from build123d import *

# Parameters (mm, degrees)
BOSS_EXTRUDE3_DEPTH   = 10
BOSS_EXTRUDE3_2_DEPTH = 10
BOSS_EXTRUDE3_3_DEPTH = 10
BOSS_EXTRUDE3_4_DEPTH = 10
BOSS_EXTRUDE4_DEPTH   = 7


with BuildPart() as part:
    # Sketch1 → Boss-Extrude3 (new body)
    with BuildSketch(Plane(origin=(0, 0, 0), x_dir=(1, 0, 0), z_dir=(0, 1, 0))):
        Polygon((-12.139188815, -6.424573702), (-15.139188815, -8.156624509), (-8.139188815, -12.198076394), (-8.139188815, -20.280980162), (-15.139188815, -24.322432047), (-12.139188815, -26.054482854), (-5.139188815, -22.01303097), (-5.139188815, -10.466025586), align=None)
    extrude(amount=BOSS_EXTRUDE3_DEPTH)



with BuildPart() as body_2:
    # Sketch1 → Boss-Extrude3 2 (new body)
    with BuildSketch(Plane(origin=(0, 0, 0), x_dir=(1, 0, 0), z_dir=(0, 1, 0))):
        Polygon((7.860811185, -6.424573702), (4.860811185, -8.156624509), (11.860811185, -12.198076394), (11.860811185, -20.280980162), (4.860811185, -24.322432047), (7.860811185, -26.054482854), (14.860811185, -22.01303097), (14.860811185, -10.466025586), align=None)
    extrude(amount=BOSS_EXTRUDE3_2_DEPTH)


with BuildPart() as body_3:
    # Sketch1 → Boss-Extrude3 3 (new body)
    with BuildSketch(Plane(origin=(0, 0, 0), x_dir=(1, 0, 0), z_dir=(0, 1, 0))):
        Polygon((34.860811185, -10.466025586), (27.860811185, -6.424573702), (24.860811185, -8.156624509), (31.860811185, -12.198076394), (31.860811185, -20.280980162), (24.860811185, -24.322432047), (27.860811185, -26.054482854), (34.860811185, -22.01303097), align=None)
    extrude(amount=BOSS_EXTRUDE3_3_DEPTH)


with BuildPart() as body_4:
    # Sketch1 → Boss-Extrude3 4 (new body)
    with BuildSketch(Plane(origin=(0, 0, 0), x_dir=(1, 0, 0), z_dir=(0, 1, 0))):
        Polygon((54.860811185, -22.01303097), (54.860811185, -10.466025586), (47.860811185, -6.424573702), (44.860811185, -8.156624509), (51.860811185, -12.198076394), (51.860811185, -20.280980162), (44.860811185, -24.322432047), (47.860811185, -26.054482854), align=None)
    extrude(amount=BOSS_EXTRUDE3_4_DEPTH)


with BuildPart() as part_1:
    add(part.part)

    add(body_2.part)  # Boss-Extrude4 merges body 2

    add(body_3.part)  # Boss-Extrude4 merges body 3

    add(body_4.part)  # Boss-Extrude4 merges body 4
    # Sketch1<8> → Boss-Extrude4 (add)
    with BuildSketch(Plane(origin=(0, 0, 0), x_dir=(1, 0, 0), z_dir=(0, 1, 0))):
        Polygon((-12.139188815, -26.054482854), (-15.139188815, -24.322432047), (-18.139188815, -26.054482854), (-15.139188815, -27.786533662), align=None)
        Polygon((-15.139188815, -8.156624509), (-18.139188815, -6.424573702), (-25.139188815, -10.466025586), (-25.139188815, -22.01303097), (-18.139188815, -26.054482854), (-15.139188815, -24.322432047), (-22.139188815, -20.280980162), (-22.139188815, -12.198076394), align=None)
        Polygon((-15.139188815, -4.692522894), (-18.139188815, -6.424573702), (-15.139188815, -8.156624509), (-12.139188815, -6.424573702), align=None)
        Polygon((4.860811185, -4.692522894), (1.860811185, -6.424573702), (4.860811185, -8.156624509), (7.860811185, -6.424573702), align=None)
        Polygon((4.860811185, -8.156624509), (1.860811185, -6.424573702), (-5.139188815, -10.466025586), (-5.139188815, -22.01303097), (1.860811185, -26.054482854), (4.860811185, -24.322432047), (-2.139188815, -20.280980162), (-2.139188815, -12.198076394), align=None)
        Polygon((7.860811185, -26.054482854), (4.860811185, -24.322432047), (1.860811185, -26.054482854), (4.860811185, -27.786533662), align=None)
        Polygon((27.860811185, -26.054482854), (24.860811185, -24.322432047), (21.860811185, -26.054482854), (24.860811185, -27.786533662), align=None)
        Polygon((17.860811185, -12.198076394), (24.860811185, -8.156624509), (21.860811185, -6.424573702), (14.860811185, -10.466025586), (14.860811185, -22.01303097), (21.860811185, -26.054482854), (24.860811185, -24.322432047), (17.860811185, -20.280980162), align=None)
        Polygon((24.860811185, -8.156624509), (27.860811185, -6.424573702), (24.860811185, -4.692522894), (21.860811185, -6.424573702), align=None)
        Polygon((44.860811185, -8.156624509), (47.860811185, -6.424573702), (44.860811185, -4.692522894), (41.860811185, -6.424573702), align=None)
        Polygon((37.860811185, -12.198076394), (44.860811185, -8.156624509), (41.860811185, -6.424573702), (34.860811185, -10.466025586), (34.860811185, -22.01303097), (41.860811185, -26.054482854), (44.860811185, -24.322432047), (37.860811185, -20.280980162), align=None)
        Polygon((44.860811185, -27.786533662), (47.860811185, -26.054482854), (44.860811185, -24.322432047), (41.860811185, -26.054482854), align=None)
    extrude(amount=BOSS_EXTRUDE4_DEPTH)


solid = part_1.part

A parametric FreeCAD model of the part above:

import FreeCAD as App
import Part
import Sketcher
from FreeCAD import Vector
Q = App.Units.Quantity

doc = App.newDocument("Part")
params = doc.addObject("Spreadsheet::Sheet", "Params")
for row, (alias, value) in enumerate([
    ("pad1_length", "10 mm"),
    ("pad2_length", "10 mm"),
    ("pad3_length", "10 mm"),
    ("pad4_length", "10 mm"),
    ("pad5_length", "7 mm"),
], start=1):
    params.set(f"A{row}", alias)
    params.set(f"B{row}", "=" + value)
    params.setAlias(f"B{row}", alias)

body = doc.addObject("PartDesign::Body", "Body")

sketch1 = doc.addObject("Sketcher::SketchObject", "Sketch")
body.addObject(sketch1)
sketch1.AttachmentSupport = (doc.XZ_Plane, [""])
sketch1.MapMode = "FlatFace"
sketch1.addGeometry([
    Part.LineSegment(Vector(-12.1, 6.4, 0), Vector(-15.1, 8.2, 0)),
    Part.LineSegment(Vector(-15.1, 8.2, 0), Vector(-8.1, 12.2, 0)),
    Part.LineSegment(Vector(-8.1, 12.2, 0), Vector(-8.1, 20.3, 0)),
    Part.LineSegment(Vector(-8.1, 20.3, 0), Vector(-15.1, 24.3, 0)),
    Part.LineSegment(Vector(-15.1, 24.3, 0), Vector(-12.1, 26.1, 0)),
    Part.LineSegment(Vector(-12.1, 26.1, 0), Vector(-5.1, 22, 0)),
    Part.LineSegment(Vector(-5.1, 22, 0), Vector(-5.1, 10.5, 0)),
    Part.LineSegment(Vector(-5.1, 10.5, 0), Vector(-12.1, 6.4, 0)),
], False)
sketch1.addConstraint([
    Sketcher.Constraint("Coincident", 0, 2, 1, 1),
    Sketcher.Constraint("Coincident", 1, 2, 2, 1),
    Sketcher.Constraint("Coincident", 2, 2, 3, 1),
    Sketcher.Constraint("Coincident", 3, 2, 4, 1),
    Sketcher.Constraint("Coincident", 4, 2, 5, 1),
    Sketcher.Constraint("Coincident", 5, 2, 6, 1),
    Sketcher.Constraint("Coincident", 6, 2, 7, 1),
    Sketcher.Constraint("Coincident", 7, 2, 0, 1),
    Sketcher.Constraint("Vertical", 2),
    Sketcher.Constraint("Vertical", 6),
    Sketcher.Constraint("Parallel", 0, 3),
    Sketcher.Constraint("Parallel", 1, 4),
    Sketcher.Constraint("Parallel", 3, 5),
    Sketcher.Constraint("Parallel", 4, 7),
    Sketcher.Constraint("Vertical", 0, 2, 3, 2),
    Sketcher.Constraint("Vertical", 4, 2, 7, 2),
    Sketcher.Constraint("Equal", 1, 3),
    Sketcher.Constraint("Equal", 3, 5),
    Sketcher.Constraint("Angle", 0, Q("150 deg")),
    Sketcher.Constraint("DistanceX", 0, 2, 1, 2, 7.0),
    Sketcher.Constraint("DistanceX", 3, 2, 4, 2, 3.0),
    Sketcher.Constraint("DistanceY", 2, 1, 2, 2, 8.082904),
    Sketcher.Constraint("DistanceX", 0, 2, -1, 1, 15.139189),
    Sketcher.Constraint("DistanceY", -1, 1, 2, 2, 20.28098),
])
pad1 = doc.addObject("PartDesign::Pad", "Pad")
body.addObject(pad1)
pad1.Profile = sketch1
pad1.setExpression("Length", "Params.pad1_length")
pad1.Reversed = True
body2 = doc.addObject("PartDesign::Body", "Body001")

sketch2 = doc.addObject("Sketcher::SketchObject", "Sketch001")
body2.addObject(sketch2)
sketch2.AttachmentSupport = (doc.getObject("XZ_Plane001"), [""])
sketch2.MapMode = "FlatFace"
sketch2.addGeometry([
    Part.LineSegment(Vector(7.9, 6.4, 0), Vector(4.9, 8.2, 0)),
    Part.LineSegment(Vector(4.9, 8.2, 0), Vector(11.9, 12.2, 0)),
    Part.LineSegment(Vector(11.9, 12.2, 0), Vector(11.9, 20.3, 0)),
    Part.LineSegment(Vector(11.9, 20.3, 0), Vector(4.9, 24.3, 0)),
    Part.LineSegment(Vector(4.9, 24.3, 0), Vector(7.9, 26.1, 0)),
    Part.LineSegment(Vector(7.9, 26.1, 0), Vector(14.9, 22, 0)),
    Part.LineSegment(Vector(14.9, 22, 0), Vector(14.9, 10.5, 0)),
    Part.LineSegment(Vector(14.9, 10.5, 0), Vector(7.9, 6.4, 0)),
], False)
sketch2.addConstraint([
    Sketcher.Constraint("Coincident", 0, 2, 1, 1),
    Sketcher.Constraint("Coincident", 1, 2, 2, 1),
    Sketcher.Constraint("Coincident", 2, 2, 3, 1),
    Sketcher.Constraint("Coincident", 3, 2, 4, 1),
    Sketcher.Constraint("Coincident", 4, 2, 5, 1),
    Sketcher.Constraint("Coincident", 5, 2, 6, 1),
    Sketcher.Constraint("Coincident", 6, 2, 7, 1),
    Sketcher.Constraint("Coincident", 7, 2, 0, 1),
    Sketcher.Constraint("Vertical", 2),
    Sketcher.Constraint("Vertical", 6),
    Sketcher.Constraint("Parallel", 0, 3),
    Sketcher.Constraint("Parallel", 1, 4),
    Sketcher.Constraint("Parallel", 3, 5),
    Sketcher.Constraint("Parallel", 4, 7),
    Sketcher.Constraint("Vertical", 0, 2, 3, 2),
    Sketcher.Constraint("Vertical", 4, 2, 7, 2),
    Sketcher.Constraint("Equal", 1, 3),
    Sketcher.Constraint("Equal", 3, 5),
    Sketcher.Constraint("Angle", 0, Q("150 deg")),
    Sketcher.Constraint("DistanceX", 0, 2, 1, 2, 7.0),
    Sketcher.Constraint("DistanceX", 3, 2, 4, 2, 3.0),
    Sketcher.Constraint("DistanceY", 2, 1, 2, 2, 8.082904),
    Sketcher.Constraint("DistanceX", -1, 1, 0, 2, 4.860811),
    Sketcher.Constraint("DistanceY", -1, 1, 2, 2, 20.28098),
])
pad2 = doc.addObject("PartDesign::Pad", "Pad001")
body2.addObject(pad2)
pad2.Profile = sketch2
pad2.setExpression("Length", "Params.pad2_length")
pad2.Reversed = True
body3 = doc.addObject("PartDesign::Body", "Body002")

sketch3 = doc.addObject("Sketcher::SketchObject", "Sketch002")
body3.addObject(sketch3)
sketch3.AttachmentSupport = (doc.getObject("XZ_Plane002"), [""])
sketch3.MapMode = "FlatFace"
sketch3.addGeometry([
    Part.LineSegment(Vector(34.9, 10.5, 0), Vector(27.9, 6.4, 0)),
    Part.LineSegment(Vector(27.9, 6.4, 0), Vector(24.9, 8.2, 0)),
    Part.LineSegment(Vector(24.9, 8.2, 0), Vector(31.9, 12.2, 0)),
    Part.LineSegment(Vector(31.9, 12.2, 0), Vector(31.9, 20.3, 0)),
    Part.LineSegment(Vector(31.9, 20.3, 0), Vector(24.9, 24.3, 0)),
    Part.LineSegment(Vector(24.9, 24.3, 0), Vector(27.9, 26.1, 0)),
    Part.LineSegment(Vector(27.9, 26.1, 0), Vector(34.9, 22, 0)),
    Part.LineSegment(Vector(34.9, 22, 0), Vector(34.9, 10.5, 0)),
], False)
sketch3.addConstraint([
    Sketcher.Constraint("Coincident", 0, 2, 1, 1),
    Sketcher.Constraint("Coincident", 1, 2, 2, 1),
    Sketcher.Constraint("Coincident", 2, 2, 3, 1),
    Sketcher.Constraint("Coincident", 3, 2, 4, 1),
    Sketcher.Constraint("Coincident", 4, 2, 5, 1),
    Sketcher.Constraint("Coincident", 5, 2, 6, 1),
    Sketcher.Constraint("Coincident", 6, 2, 7, 1),
    Sketcher.Constraint("Coincident", 7, 2, 0, 1),
    Sketcher.Constraint("Vertical", 3),
    Sketcher.Constraint("Vertical", 7),
    Sketcher.Constraint("Parallel", 0, 2),
    Sketcher.Constraint("Parallel", 1, 4),
    Sketcher.Constraint("Parallel", 2, 5),
    Sketcher.Constraint("Parallel", 4, 6),
    Sketcher.Constraint("Vertical", 1, 2, 4, 2),
    Sketcher.Constraint("Vertical", 0, 2, 5, 2),
    Sketcher.Constraint("Equal", 0, 2),
    Sketcher.Constraint("Equal", 2, 4),
    Sketcher.Constraint("Angle", 0, Q("-150 deg")),
    Sketcher.Constraint("DistanceX", 1, 2, 0, 2, 3.0),
    Sketcher.Constraint("DistanceX", 0, 2, 2, 2, 4.0),
    Sketcher.Constraint("DistanceY", 3, 1, 3, 2, 8.082904),
    Sketcher.Constraint("DistanceX", -1, 1, 0, 2, 27.860811),
    Sketcher.Constraint("DistanceY", -1, 1, 3, 2, 20.28098),
])
pad3 = doc.addObject("PartDesign::Pad", "Pad002")
body3.addObject(pad3)
pad3.Profile = sketch3
pad3.setExpression("Length", "Params.pad3_length")
pad3.Reversed = True
body4 = doc.addObject("PartDesign::Body", "Body003")

sketch4 = doc.addObject("Sketcher::SketchObject", "Sketch003")
body4.addObject(sketch4)
sketch4.AttachmentSupport = (doc.getObject("XZ_Plane003"), [""])
sketch4.MapMode = "FlatFace"
sketch4.addGeometry([
    Part.LineSegment(Vector(54.9, 22, 0), Vector(54.9, 10.5, 0)),
    Part.LineSegment(Vector(54.9, 10.5, 0), Vector(47.9, 6.4, 0)),
    Part.LineSegment(Vector(47.9, 6.4, 0), Vector(44.9, 8.2, 0)),
    Part.LineSegment(Vector(44.9, 8.2, 0), Vector(51.9, 12.2, 0)),
    Part.LineSegment(Vector(51.9, 12.2, 0), Vector(51.9, 20.3, 0)),
    Part.LineSegment(Vector(51.9, 20.3, 0), Vector(44.9, 24.3, 0)),
    Part.LineSegment(Vector(44.9, 24.3, 0), Vector(47.9, 26.1, 0)),
    Part.LineSegment(Vector(47.9, 26.1, 0), Vector(54.9, 22, 0)),
], False)
sketch4.addConstraint([
    Sketcher.Constraint("Coincident", 0, 2, 1, 1),
    Sketcher.Constraint("Coincident", 1, 2, 2, 1),
    Sketcher.Constraint("Coincident", 2, 2, 3, 1),
    Sketcher.Constraint("Coincident", 3, 2, 4, 1),
    Sketcher.Constraint("Coincident", 4, 2, 5, 1),
    Sketcher.Constraint("Coincident", 5, 2, 6, 1),
    Sketcher.Constraint("Coincident", 6, 2, 7, 1),
    Sketcher.Constraint("Coincident", 7, 2, 0, 1),
    Sketcher.Constraint("Vertical", 0),
    Sketcher.Constraint("Vertical", 4),
    Sketcher.Constraint("Parallel", 1, 3),
    Sketcher.Constraint("Parallel", 2, 5),
    Sketcher.Constraint("Parallel", 3, 6),
    Sketcher.Constraint("Parallel", 5, 7),
    Sketcher.Constraint("Vertical", 2, 2, 5, 2),
    Sketcher.Constraint("Vertical", 1, 2, 6, 2),
    Sketcher.Constraint("Equal", 1, 3),
    Sketcher.Constraint("Equal", 3, 5),
    Sketcher.Constraint("Angle", 1, Q("-150 deg")),
    Sketcher.Constraint("DistanceX", 1, 2, 0, 2, 7.0),
    Sketcher.Constraint("DistanceX", 2, 2, 1, 2, 3.0),
    Sketcher.Constraint("DistanceY", 0, 2, 0, 1, 11.547005),
    Sketcher.Constraint("DistanceX", -1, 1, 0, 2, 54.860811),
    Sketcher.Constraint("DistanceY", -1, 1, 4, 2, 20.28098),
])
pad4 = doc.addObject("PartDesign::Pad", "Pad003")
body4.addObject(pad4)
pad4.Profile = sketch4
pad4.setExpression("Length", "Params.pad4_length")
pad4.Reversed = True
body.AllowCompound = True
doc.recompute()

boolean = doc.addObject("PartDesign::Boolean", "Boolean")
body.addObject(boolean)
boolean.Type = "Fuse"
boolean.addObjects([body2])
doc.recompute()

boolean2 = doc.addObject("PartDesign::Boolean", "Boolean001")
body.addObject(boolean2)
boolean2.Type = "Fuse"
boolean2.addObjects([body3])
doc.recompute()

boolean3 = doc.addObject("PartDesign::Boolean", "Boolean002")
body.addObject(boolean3)
boolean3.Type = "Fuse"
boolean3.addObjects([body4])

sketch5 = doc.addObject("Sketcher::SketchObject", "Sketch004")
body.addObject(sketch5)
sketch5.AttachmentSupport = (doc.XZ_Plane, [""])
sketch5.MapMode = "FlatFace"
sketch5.addGeometry([
    Part.LineSegment(Vector(-12.1, 26.1, 0), Vector(-15.1, 24.3, 0)),
    Part.LineSegment(Vector(-15.1, 24.3, 0), Vector(-22.1, 20.3, 0)),
    Part.LineSegment(Vector(-22.1, 20.3, 0), Vector(-22.1, 12.2, 0)),
    Part.LineSegment(Vector(-22.1, 12.2, 0), Vector(-15.1, 8.2, 0)),
    Part.LineSegment(Vector(-15.1, 8.2, 0), Vector(-12.1, 6.4, 0)),
    Part.LineSegment(Vector(-12.1, 6.4, 0), Vector(-15.1, 4.7, 0)),
    Part.LineSegment(Vector(-15.1, 4.7, 0), Vector(-18.1, 6.4, 0)),
    Part.LineSegment(Vector(-18.1, 6.4, 0), Vector(-25.1, 10.5, 0)),
    Part.LineSegment(Vector(-25.1, 10.5, 0), Vector(-25.1, 22, 0)),
    Part.LineSegment(Vector(-25.1, 22, 0), Vector(-18.1, 26.1, 0)),
    Part.LineSegment(Vector(-18.1, 26.1, 0), Vector(-15.1, 27.8, 0)),
    Part.LineSegment(Vector(-15.1, 27.8, 0), Vector(-12.1, 26.1, 0)),
    Part.LineSegment(Vector(4.9, 4.7, 0), Vector(1.9, 6.4, 0)),
    Part.LineSegment(Vector(1.9, 6.4, 0), Vector(-5.1, 10.5, 0)),
    Part.LineSegment(Vector(-5.1, 10.5, 0), Vector(-5.1, 22, 0)),
    Part.LineSegment(Vector(-5.1, 22, 0), Vector(1.9, 26.1, 0)),
    Part.LineSegment(Vector(1.9, 26.1, 0), Vector(4.9, 27.8, 0)),
    Part.LineSegment(Vector(4.9, 27.8, 0), Vector(7.9, 26.1, 0)),
    Part.LineSegment(Vector(7.9, 26.1, 0), Vector(4.9, 24.3, 0)),
    Part.LineSegment(Vector(4.9, 24.3, 0), Vector(-2.1, 20.3, 0)),
    Part.LineSegment(Vector(-2.1, 20.3, 0), Vector(-2.1, 12.2, 0)),
    Part.LineSegment(Vector(-2.1, 12.2, 0), Vector(4.9, 8.2, 0)),
    Part.LineSegment(Vector(4.9, 8.2, 0), Vector(7.9, 6.4, 0)),
    Part.LineSegment(Vector(7.9, 6.4, 0), Vector(4.9, 4.7, 0)),
    Part.LineSegment(Vector(27.9, 26.1, 0), Vector(24.9, 24.3, 0)),
    Part.LineSegment(Vector(24.9, 24.3, 0), Vector(17.9, 20.3, 0)),
    Part.LineSegment(Vector(17.9, 20.3, 0), Vector(17.9, 12.2, 0)),
    Part.LineSegment(Vector(17.9, 12.2, 0), Vector(24.9, 8.2, 0)),
    Part.LineSegment(Vector(24.9, 8.2, 0), Vector(27.9, 6.4, 0)),
    Part.LineSegment(Vector(27.9, 6.4, 0), Vector(24.9, 4.7, 0)),
    Part.LineSegment(Vector(24.9, 4.7, 0), Vector(21.9, 6.4, 0)),
    Part.LineSegment(Vector(21.9, 6.4, 0), Vector(14.9, 10.5, 0)),
    Part.LineSegment(Vector(14.9, 10.5, 0), Vector(14.9, 22, 0)),
    Part.LineSegment(Vector(14.9, 22, 0), Vector(21.9, 26.1, 0)),
    Part.LineSegment(Vector(21.9, 26.1, 0), Vector(24.9, 27.8, 0)),
    Part.LineSegment(Vector(24.9, 27.8, 0), Vector(27.9, 26.1, 0)),
    Part.LineSegment(Vector(44.9, 8.2, 0), Vector(47.9, 6.4, 0)),
    Part.LineSegment(Vector(47.9, 6.4, 0), Vector(44.9, 4.7, 0)),
    Part.LineSegment(Vector(44.9, 4.7, 0), Vector(41.9, 6.4, 0)),
    Part.LineSegment(Vector(41.9, 6.4, 0), Vector(34.9, 10.5, 0)),
    Part.LineSegment(Vector(34.9, 10.5, 0), Vector(34.9, 22, 0)),
    Part.LineSegment(Vector(34.9, 22, 0), Vector(41.9, 26.1, 0)),
    Part.LineSegment(Vector(41.9, 26.1, 0), Vector(44.9, 27.8, 0)),
    Part.LineSegment(Vector(44.9, 27.8, 0), Vector(47.9, 26.1, 0)),
    Part.LineSegment(Vector(47.9, 26.1, 0), Vector(44.9, 24.3, 0)),
    Part.LineSegment(Vector(44.9, 24.3, 0), Vector(37.9, 20.3, 0)),
    Part.LineSegment(Vector(37.9, 20.3, 0), Vector(37.9, 12.2, 0)),
    Part.LineSegment(Vector(37.9, 12.2, 0), Vector(44.9, 8.2, 0)),
], False)
sketch5.addConstraint([
    Sketcher.Constraint("Coincident", 0, 2, 1, 1),
    Sketcher.Constraint("Coincident", 1, 2, 2, 1),
    Sketcher.Constraint("Coincident", 2, 2, 3, 1),
    Sketcher.Constraint("Coincident", 3, 2, 4, 1),
    Sketcher.Constraint("Coincident", 4, 2, 5, 1),
    Sketcher.Constraint("Coincident", 5, 2, 6, 1),
    Sketcher.Constraint("Coincident", 6, 2, 7, 1),
    Sketcher.Constraint("Coincident", 7, 2, 8, 1),
    Sketcher.Constraint("Coincident", 8, 2, 9, 1),
    Sketcher.Constraint("Coincident", 9, 2, 10, 1),
    Sketcher.Constraint("Coincident", 10, 2, 11, 1),
    Sketcher.Constraint("Coincident", 11, 2, 0, 1),
    Sketcher.Constraint("Coincident", 12, 2, 13, 1),
    Sketcher.Constraint("Coincident", 13, 2, 14, 1),
    Sketcher.Constraint("Coincident", 14, 2, 15, 1),
    Sketcher.Constraint("Coincident", 15, 2, 16, 1),
    Sketcher.Constraint("Coincident", 16, 2, 17, 1),
    Sketcher.Constraint("Coincident", 17, 2, 18, 1),
    Sketcher.Constraint("Coincident", 18, 2, 19, 1),
    Sketcher.Constraint("Coincident", 19, 2, 20, 1),
    Sketcher.Constraint("Coincident", 20, 2, 21, 1),
    Sketcher.Constraint("Coincident", 21, 2, 22, 1),
    Sketcher.Constraint("Coincident", 22, 2, 23, 1),
    Sketcher.Constraint("Coincident", 23, 2, 12, 1),
    Sketcher.Constraint("Coincident", 24, 2, 25, 1),
    Sketcher.Constraint("Coincident", 25, 2, 26, 1),
    Sketcher.Constraint("Coincident", 26, 2, 27, 1),
    Sketcher.Constraint("Coincident", 27, 2, 28, 1),
    Sketcher.Constraint("Coincident", 28, 2, 29, 1),
    Sketcher.Constraint("Coincident", 29, 2, 30, 1),
    Sketcher.Constraint("Coincident", 30, 2, 31, 1),
    Sketcher.Constraint("Coincident", 31, 2, 32, 1),
    Sketcher.Constraint("Coincident", 32, 2, 33, 1),
    Sketcher.Constraint("Coincident", 33, 2, 34, 1),
    Sketcher.Constraint("Coincident", 34, 2, 35, 1),
    Sketcher.Constraint("Coincident", 35, 2, 24, 1),
    Sketcher.Constraint("Coincident", 36, 2, 37, 1),
    Sketcher.Constraint("Coincident", 37, 2, 38, 1),
    Sketcher.Constraint("Coincident", 38, 2, 39, 1),
    Sketcher.Constraint("Coincident", 39, 2, 40, 1),
    Sketcher.Constraint("Coincident", 40, 2, 41, 1),
    Sketcher.Constraint("Coincident", 41, 2, 42, 1),
    Sketcher.Constraint("Coincident", 42, 2, 43, 1),
    Sketcher.Constraint("Coincident", 43, 2, 44, 1),
    Sketcher.Constraint("Coincident", 44, 2, 45, 1),
    Sketcher.Constraint("Coincident", 45, 2, 46, 1),
    Sketcher.Constraint("Coincident", 46, 2, 47, 1),
    Sketcher.Constraint("Coincident", 47, 2, 36, 1),
    Sketcher.Constraint("Vertical", 2),
    Sketcher.Constraint("Vertical", 8),
    Sketcher.Constraint("Vertical", 14),
    Sketcher.Constraint("Vertical", 20),
    Sketcher.Constraint("Vertical", 26),
    Sketcher.Constraint("Vertical", 32),
    Sketcher.Constraint("Vertical", 40),
    Sketcher.Constraint("Vertical", 46),
    Sketcher.Constraint("Parallel", 0, 1),
    Sketcher.Constraint("Parallel", 3, 4),
    Sketcher.Constraint("Parallel", 1, 5),
    Sketcher.Constraint("Parallel", 4, 6),
    Sketcher.Constraint("Parallel", 6, 7),
    Sketcher.Constraint("Parallel", 5, 9),
    Sketcher.Constraint("Parallel", 9, 10),
    Sketcher.Constraint("Parallel", 7, 11),
    Sketcher.Constraint("Parallel", 11, 12),
    Sketcher.Constraint("Parallel", 12, 13),
    Sketcher.Constraint("Parallel", 10, 15),
    Sketcher.Constraint("Parallel", 15, 16),
    Sketcher.Constraint("Parallel", 13, 17),
    Sketcher.Constraint("Parallel", 16, 18),
    Sketcher.Constraint("Parallel", 18, 19),
    Sketcher.Constraint("Parallel", 17, 21),
    Sketcher.Constraint("Parallel", 21, 22),
    Sketcher.Constraint("Parallel", 19, 23),
    Sketcher.Constraint("Parallel", 23, 24),
    Sketcher.Constraint("Parallel", 24, 25),
    Sketcher.Constraint("Parallel", 22, 27),
    Sketcher.Constraint("Parallel", 27, 28),
    Sketcher.Constraint("Parallel", 25, 29),
    Sketcher.Constraint("Parallel", 28, 30),
    Sketcher.Constraint("Parallel", 30, 31),
    Sketcher.Constraint("Parallel", 29, 33),
    Sketcher.Constraint("Parallel", 33, 34),
    Sketcher.Constraint("Parallel", 31, 35),
    Sketcher.Constraint("Parallel", 35, 36),
    Sketcher.Constraint("Parallel", 34, 37),
    Sketcher.Constraint("Parallel", 36, 38),
    Sketcher.Constraint("Parallel", 38, 39),
    Sketcher.Constraint("Parallel", 37, 41),
    Sketcher.Constraint("Parallel", 41, 42),
    Sketcher.Constraint("Parallel", 39, 43),
    Sketcher.Constraint("Parallel", 42, 44),
    Sketcher.Constraint("Parallel", 44, 45),
    Sketcher.Constraint("Parallel", 43, 47),
    Sketcher.Constraint("Horizontal", 4, 2, 6, 2),
    Sketcher.Constraint("Horizontal", 9, 2, 11, 2),
    Sketcher.Constraint("Horizontal", 6, 2, 12, 2),
    Sketcher.Constraint("Horizontal", 7, 2, 13, 2),
    Sketcher.Constraint("Horizontal", 8, 2, 14, 2),
    Sketcher.Constraint("Horizontal", 11, 2, 15, 2),
    Sketcher.Constraint("Horizontal", 10, 2, 16, 2),
    Sketcher.Constraint("Horizontal", 15, 2, 17, 2),
    Sketcher.Constraint("Horizontal", 0, 2, 18, 2),
    Sketcher.Constraint("Horizontal", 1, 2, 19, 2),
    Sketcher.Constraint("Horizontal", 2, 2, 20, 2),
    Sketcher.Constraint("Horizontal", 3, 2, 21, 2),
    Sketcher.Constraint("Horizontal", 12, 2, 22, 2),
    Sketcher.Constraint("Horizontal", 18, 2, 24, 2),
    Sketcher.Constraint("Horizontal", 19, 2, 25, 2),
    Sketcher.Constraint("Horizontal", 20, 2, 26, 2),
    Sketcher.Constraint("Horizontal", 21, 2, 27, 2),
    Sketcher.Constraint("Horizontal", 22, 2, 28, 2),
    Sketcher.Constraint("Horizontal", 23, 2, 29, 2),
    Sketcher.Constraint("Horizontal", 28, 2, 30, 2),
    Sketcher.Constraint("Horizontal", 13, 2, 31, 2),
    Sketcher.Constraint("Horizontal", 14, 2, 32, 2),
    Sketcher.Constraint("Horizontal", 17, 2, 33, 2),
    Sketcher.Constraint("Horizontal", 16, 2, 34, 2),
    Sketcher.Constraint("Horizontal", 30, 2, 36, 2),
    Sketcher.Constraint("Horizontal", 29, 2, 37, 2),
    Sketcher.Constraint("Horizontal", 36, 2, 38, 2),
    Sketcher.Constraint("Horizontal", 31, 2, 39, 2),
    Sketcher.Constraint("Horizontal", 32, 2, 40, 2),
    Sketcher.Constraint("Horizontal", 35, 2, 41, 2),
    Sketcher.Constraint("Horizontal", 34, 2, 42, 2),
    Sketcher.Constraint("Horizontal", 41, 2, 43, 2),
    Sketcher.Constraint("Horizontal", 24, 2, 44, 2),
    Sketcher.Constraint("Horizontal", 25, 2, 45, 2),
    Sketcher.Constraint("Horizontal", 27, 2, 47, 2),
    Sketcher.Constraint("Vertical", 0, 2, 3, 2),
    Sketcher.Constraint("Vertical", 3, 2, 5, 2),
    Sketcher.Constraint("Vertical", 6, 2, 9, 2),
    Sketcher.Constraint("Vertical", 5, 2, 10, 2),
    Sketcher.Constraint("Vertical", 4, 2, 11, 2),
    Sketcher.Constraint("Equal", 3, 7),
    Sketcher.Constraint("Angle", 0, Q("-150 deg")),
    Sketcher.Constraint("DistanceX", 1, 2, 0, 2, 7.0),
    Sketcher.Constraint("DistanceX", 3, 2, 4, 2, 3.0),
    Sketcher.Constraint("DistanceX", 4, 2, 12, 2, 14.0),
    Sketcher.Constraint("DistanceX", 17, 2, 24, 2, 17.0),
    Sketcher.Constraint("DistanceX", 28, 2, 36, 2, 20.0),
    Sketcher.Constraint("DistanceY", 2, 2, 2, 1, 8.082904),
    Sketcher.Constraint("DistanceX", 0, 2, -1, 1, 15.139189),
    Sketcher.Constraint("DistanceY", -1, 1, 1, 2, 20.28098),
])
pad5 = doc.addObject("PartDesign::Pad", "Pad004")
body.addObject(pad5)
pad5.Profile = sketch5
pad5.setExpression("Length", "Params.pad5_length")
pad5.Reversed = True

doc.recompute()
